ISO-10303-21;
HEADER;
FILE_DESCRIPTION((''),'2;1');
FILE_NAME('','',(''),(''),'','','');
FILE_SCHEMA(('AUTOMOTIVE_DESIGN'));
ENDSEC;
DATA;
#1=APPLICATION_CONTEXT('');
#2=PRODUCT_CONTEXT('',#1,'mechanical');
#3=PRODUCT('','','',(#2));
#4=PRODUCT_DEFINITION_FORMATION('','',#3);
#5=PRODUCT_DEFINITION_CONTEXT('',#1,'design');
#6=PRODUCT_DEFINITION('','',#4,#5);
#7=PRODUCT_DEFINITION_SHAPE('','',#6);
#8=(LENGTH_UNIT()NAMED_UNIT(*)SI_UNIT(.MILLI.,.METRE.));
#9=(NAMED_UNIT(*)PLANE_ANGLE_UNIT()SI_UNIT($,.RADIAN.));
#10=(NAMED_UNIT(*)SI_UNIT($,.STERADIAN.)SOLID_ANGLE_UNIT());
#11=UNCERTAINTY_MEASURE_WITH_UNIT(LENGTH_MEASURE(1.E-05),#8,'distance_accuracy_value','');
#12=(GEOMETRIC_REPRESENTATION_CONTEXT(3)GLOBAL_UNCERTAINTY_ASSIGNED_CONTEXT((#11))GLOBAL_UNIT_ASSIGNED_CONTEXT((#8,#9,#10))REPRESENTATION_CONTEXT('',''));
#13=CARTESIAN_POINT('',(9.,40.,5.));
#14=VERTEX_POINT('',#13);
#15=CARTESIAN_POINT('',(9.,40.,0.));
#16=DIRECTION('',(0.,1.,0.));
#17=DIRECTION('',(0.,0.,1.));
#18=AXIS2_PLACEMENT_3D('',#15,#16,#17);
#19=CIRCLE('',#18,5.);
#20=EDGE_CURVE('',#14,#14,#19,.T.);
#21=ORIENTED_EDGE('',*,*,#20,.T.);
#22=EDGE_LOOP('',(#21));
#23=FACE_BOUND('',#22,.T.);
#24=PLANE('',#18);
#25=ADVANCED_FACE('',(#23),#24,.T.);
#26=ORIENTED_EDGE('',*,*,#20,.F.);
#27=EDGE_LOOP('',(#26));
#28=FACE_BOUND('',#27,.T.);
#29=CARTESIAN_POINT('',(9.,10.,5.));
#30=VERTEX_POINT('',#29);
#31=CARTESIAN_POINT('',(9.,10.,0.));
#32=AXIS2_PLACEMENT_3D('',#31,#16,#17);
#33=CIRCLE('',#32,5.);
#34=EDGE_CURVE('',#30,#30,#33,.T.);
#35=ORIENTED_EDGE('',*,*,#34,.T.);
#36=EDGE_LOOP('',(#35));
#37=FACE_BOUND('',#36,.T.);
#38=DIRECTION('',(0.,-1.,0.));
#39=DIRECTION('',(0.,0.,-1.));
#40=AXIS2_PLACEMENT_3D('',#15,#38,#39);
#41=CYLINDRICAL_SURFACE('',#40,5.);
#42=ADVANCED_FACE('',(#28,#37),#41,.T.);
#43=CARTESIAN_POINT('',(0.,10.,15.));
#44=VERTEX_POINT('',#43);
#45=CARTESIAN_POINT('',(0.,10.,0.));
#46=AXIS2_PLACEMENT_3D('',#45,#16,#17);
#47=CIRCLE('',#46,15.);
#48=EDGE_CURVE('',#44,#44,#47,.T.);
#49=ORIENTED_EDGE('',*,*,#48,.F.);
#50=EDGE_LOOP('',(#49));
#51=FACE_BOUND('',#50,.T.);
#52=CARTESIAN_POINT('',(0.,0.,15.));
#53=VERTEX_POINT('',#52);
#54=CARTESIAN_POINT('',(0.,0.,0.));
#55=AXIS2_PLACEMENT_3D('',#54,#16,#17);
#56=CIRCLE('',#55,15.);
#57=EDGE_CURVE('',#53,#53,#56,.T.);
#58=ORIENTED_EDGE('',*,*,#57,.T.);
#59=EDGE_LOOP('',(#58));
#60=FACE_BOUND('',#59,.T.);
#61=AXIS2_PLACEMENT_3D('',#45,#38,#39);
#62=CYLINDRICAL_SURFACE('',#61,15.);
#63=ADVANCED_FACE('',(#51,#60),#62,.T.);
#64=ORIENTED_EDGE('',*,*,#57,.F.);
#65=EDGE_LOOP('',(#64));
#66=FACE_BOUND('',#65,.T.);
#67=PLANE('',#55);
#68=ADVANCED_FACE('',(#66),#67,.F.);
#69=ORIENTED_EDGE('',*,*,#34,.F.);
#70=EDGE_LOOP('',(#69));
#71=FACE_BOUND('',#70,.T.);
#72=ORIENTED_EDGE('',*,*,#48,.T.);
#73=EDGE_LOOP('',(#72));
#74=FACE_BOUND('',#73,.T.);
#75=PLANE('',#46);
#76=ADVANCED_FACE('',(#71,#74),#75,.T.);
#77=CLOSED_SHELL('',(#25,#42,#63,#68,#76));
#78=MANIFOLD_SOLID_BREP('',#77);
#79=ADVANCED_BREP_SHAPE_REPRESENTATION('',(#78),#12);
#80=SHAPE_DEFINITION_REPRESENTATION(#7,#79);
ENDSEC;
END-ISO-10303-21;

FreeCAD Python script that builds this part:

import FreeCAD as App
import Part
import Sketcher
Q = App.Units.Quantity

doc = App.newDocument("Part")
body = doc.addObject("PartDesign::Body", "Body")

sketch1 = body.newObject("Sketcher::SketchObject", "Sketch")
sketch1.AttachmentSupport = (doc.getObject("XZ_Plane"), [""])
sketch1.MapMode = "FlatFace"
sketch1.addGeometry(Part.Circle(App.Vector(0, 0, 0), App.Vector(0, 0, 1), 15), False)
sketch1.addConstraint([
    Sketcher.Constraint("Coincident", 0, 3, -1, 1),
    Sketcher.Constraint("Diameter", 0, Q("30 mm")),
])
pad1 = body.newObject("PartDesign::Pad", "Pad")
pad1.Profile = sketch1
pad1.Length = 10
pad1.Reversed = True

sketch2 = body.newObject("Sketcher::SketchObject", "Sketch001")
sketch2.AttachmentSupport = (doc.getObject("XZ_Plane"), [""])
sketch2.MapMode = "FlatFace"
sketch2.AttachmentOffset = App.Placement(App.Vector(0, 0, -10), App.Rotation())
sketch2.addGeometry(Part.Circle(App.Vector(9, 0, 0), App.Vector(0, 0, 1), 5), False)
sketch2.addConstraint([
    Sketcher.Constraint("PointOnObject", 0, 3, -1),
    Sketcher.Constraint("Diameter", 0, Q("10 mm")),
    Sketcher.Constraint("DistanceX", -1, 1, 0, 3, Q("9 mm")),
])
pad2 = body.newObject("PartDesign::Pad", "Pad001")
pad2.Profile = sketch2
pad2.Length = 30
pad2.Reversed = True

doc.recompute()
